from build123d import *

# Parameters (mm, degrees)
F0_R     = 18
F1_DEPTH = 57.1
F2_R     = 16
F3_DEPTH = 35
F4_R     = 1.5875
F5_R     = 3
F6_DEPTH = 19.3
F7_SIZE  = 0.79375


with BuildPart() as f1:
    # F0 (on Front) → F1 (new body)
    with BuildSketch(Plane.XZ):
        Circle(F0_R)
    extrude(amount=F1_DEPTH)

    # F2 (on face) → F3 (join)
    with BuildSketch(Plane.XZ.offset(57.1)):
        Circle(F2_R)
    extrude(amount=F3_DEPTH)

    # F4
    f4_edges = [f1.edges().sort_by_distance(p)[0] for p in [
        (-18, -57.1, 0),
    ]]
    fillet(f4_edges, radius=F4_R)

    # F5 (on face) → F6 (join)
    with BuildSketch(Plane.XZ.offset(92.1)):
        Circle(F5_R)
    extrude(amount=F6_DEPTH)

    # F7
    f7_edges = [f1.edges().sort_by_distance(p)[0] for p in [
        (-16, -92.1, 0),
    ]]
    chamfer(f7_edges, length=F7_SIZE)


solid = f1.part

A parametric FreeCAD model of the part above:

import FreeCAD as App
import Part
import Sketcher

V = App.Vector


def edges_at(feature, points):
    """Names of the edges that pass closest to the given points."""
    edges = feature.Shape.Edges
    near = lambda p: min(range(len(edges)), key=lambda i: edges[i].distToShape(Part.Vertex(*p))[0])
    return sorted({f"Edge{near(p) + 1}" for p in points})

doc = App.newDocument("Part")
params = doc.addObject("Spreadsheet::Sheet", "Params")
for row, (alias, value) in enumerate([
    ("sketch1_diameter", "36 mm"),
    ("pad1_length", "57.1 mm"),
    ("sketch2_diameter", "32 mm"),
    ("pad2_length", "35 mm"),
    ("fillet_radius", "1.5875 mm"),
    ("sketch3_diameter", "6 mm"),
    ("pad3_length", "19.3 mm"),
    ("chamfer_size", "0.79375 mm"),
], start=1):
    params.set(f"A{row}", alias)
    params.set(f"B{row}", "=" + value)
    params.setAlias(f"B{row}", alias)

body = doc.addObject("PartDesign::Body", "Body")

sketch1 = body.newObject("Sketcher::SketchObject", "Sketch")
sketch1.AttachmentSupport = (doc.getObject("XZ_Plane"), [""])
sketch1.MapMode = "FlatFace"
sketch1.addGeometry(Part.Circle(V(0, 0, 0), V(0, 0, 1), 18), False)
sketch1.addConstraint([
    Sketcher.Constraint("Coincident", 0, 3, -1, 1),
    Sketcher.Constraint("Diameter", 0, 36.0),
])
sketch1.setExpression("Constraints[1]", "Params.sketch1_diameter")
pad1 = body.newObject("PartDesign::Pad", "Pad")
pad1.Profile = sketch1
pad1.setExpression("Length", "Params.pad1_length")

sketch2 = body.newObject("Sketcher::SketchObject", "Sketch001")
sketch2.AttachmentSupport = (doc.getObject("XZ_Plane"), [""])
sketch2.MapMode = "FlatFace"
sketch2.AttachmentOffset = App.Placement(V(0, 0, 57.1), App.Rotation())
sketch2.addGeometry(Part.Circle(V(0, 0, 0), V(0, 0, 1), 16), False)
sketch2.addConstraint([
    Sketcher.Constraint("Coincident", 0, 3, -1, 1),
    Sketcher.Constraint("Diameter", 0, 32.0),
])
sketch2.setExpression("Constraints[1]", "Params.sketch2_diameter")
pad2 = body.newObject("PartDesign::Pad", "Pad001")
pad2.Profile = sketch2
pad2.setExpression("Length", "Params.pad2_length")
doc.recompute()

fillet = body.newObject("PartDesign::Fillet", "Fillet")
fillet.Base = (pad2, edges_at(pad2, [(-18, -57.1, 0)]))
fillet.setExpression("Radius", "Params.fillet_radius")

sketch3 = body.newObject("Sketcher::SketchObject", "Sketch002")
sketch3.AttachmentSupport = (doc.getObject("XZ_Plane"), [""])
sketch3.MapMode = "FlatFace"
sketch3.AttachmentOffset = App.Placement(V(0, 0, 92.1), App.Rotation())
sketch3.addGeometry(Part.Circle(V(0, 0, 0), V(0, 0, 1), 3), False)
sketch3.addConstraint([
    Sketcher.Constraint("Coincident", 0, 3, -1, 1),
    Sketcher.Constraint("Diameter", 0, 6.0),
])
sketch3.setExpression("Constraints[1]", "Params.sketch3_diameter")
pad3 = body.newObject("PartDesign::Pad", "Pad002")
pad3.Profile = sketch3
pad3.setExpression("Length", "Params.pad3_length")
doc.recompute()

chamfer = body.newObject("PartDesign::Chamfer", "Chamfer")
chamfer.Base = (pad3, edges_at(pad3, [(-16, -92.1, 0)]))
chamfer.setExpression("Size", "Params.chamfer_size")

doc.recompute()
